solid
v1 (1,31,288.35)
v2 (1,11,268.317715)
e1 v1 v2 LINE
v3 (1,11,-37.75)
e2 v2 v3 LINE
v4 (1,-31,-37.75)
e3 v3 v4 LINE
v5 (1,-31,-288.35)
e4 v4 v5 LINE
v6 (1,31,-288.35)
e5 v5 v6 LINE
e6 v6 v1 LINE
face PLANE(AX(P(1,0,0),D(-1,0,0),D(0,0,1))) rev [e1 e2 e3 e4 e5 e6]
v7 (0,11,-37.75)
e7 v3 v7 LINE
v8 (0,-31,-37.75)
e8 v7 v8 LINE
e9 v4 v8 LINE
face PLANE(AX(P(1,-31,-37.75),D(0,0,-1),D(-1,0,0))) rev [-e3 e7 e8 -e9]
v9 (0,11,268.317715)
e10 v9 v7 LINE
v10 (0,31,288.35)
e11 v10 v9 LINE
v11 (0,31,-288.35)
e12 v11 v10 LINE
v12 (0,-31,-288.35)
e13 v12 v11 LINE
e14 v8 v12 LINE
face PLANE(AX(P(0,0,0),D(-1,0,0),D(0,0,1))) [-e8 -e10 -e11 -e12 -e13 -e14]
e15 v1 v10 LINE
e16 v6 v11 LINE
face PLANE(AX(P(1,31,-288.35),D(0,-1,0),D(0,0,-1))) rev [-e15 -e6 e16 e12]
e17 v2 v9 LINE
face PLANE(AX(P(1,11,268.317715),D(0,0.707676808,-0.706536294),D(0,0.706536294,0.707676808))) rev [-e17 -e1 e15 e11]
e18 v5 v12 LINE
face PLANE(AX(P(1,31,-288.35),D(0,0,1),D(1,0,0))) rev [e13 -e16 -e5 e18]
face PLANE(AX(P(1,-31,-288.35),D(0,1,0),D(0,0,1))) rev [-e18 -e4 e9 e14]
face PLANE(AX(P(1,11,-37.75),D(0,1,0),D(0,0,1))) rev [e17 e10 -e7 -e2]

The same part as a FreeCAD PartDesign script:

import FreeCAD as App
import Part
import Sketcher
Q = App.Units.Quantity

doc = App.newDocument("Part")
body = doc.addObject("PartDesign::Body", "Body")

# Sketch on YZ plane
sketch1 = body.newObject("Sketcher::SketchObject", "Sketch")
sketch1.AttachmentSupport = (doc.getObject("YZ_Plane"), [""])
sketch1.MapMode = "FlatFace"
sketch1.addGeometry([
    Part.LineSegment(App.Vector(31, -288.35, 0), App.Vector(31, 288.35, 0)),  # 0
    Part.LineSegment(App.Vector(31, 288.35, 0), App.Vector(11, 268.317715, 0)),  # 1
    Part.LineSegment(App.Vector(11, 268.317715, 0), App.Vector(11, -37.75, 0)),  # 2
    Part.LineSegment(App.Vector(11, -37.75, 0), App.Vector(-31, -37.75, 0)),  # 3
    Part.LineSegment(App.Vector(-31, -37.75, 0), App.Vector(-31, -288.35, 0)),  # 4
    Part.LineSegment(App.Vector(-31, -288.35, 0), App.Vector(31, -288.35, 0)),  # 5
], False)
sketch1.addConstraint([
    Sketcher.Constraint("Coincident", 0, 2, 1, 1),
    Sketcher.Constraint("Coincident", 1, 2, 2, 1),
    Sketcher.Constraint("Coincident", 2, 2, 3, 1),
    Sketcher.Constraint("Coincident", 3, 2, 4, 1),
    Sketcher.Constraint("Coincident", 4, 2, 5, 1),
    Sketcher.Constraint("Coincident", 5, 2, 0, 1),
    Sketcher.Constraint("Vertical", 0),
    Sketcher.Constraint("Vertical", 2),
    Sketcher.Constraint("Horizontal", 3),
    Sketcher.Constraint("Vertical", 4),
    Sketcher.Constraint("Horizontal", 5),
    Sketcher.Constraint("Symmetric", 0, 2, 4, 2, -1, 1),
    Sketcher.Constraint("DistanceX", 3, 2, 3, 1, Q("42 mm")),
    Sketcher.Constraint("DistanceX", 5, 1, 5, 2, Q("62 mm")),
    Sketcher.Constraint("DistanceY", 0, 1, 0, 2, Q("576.7 mm")),
    Sketcher.Constraint("DistanceY", 4, 2, 4, 1, Q("250.6 mm")),
    Sketcher.Constraint("Distance", 1, Q("28.307109 mm")),
])
pad1 = body.newObject("PartDesign::Pad", "Pad")
pad1.Profile = sketch1
pad1.Length = 1

doc.recompute()
